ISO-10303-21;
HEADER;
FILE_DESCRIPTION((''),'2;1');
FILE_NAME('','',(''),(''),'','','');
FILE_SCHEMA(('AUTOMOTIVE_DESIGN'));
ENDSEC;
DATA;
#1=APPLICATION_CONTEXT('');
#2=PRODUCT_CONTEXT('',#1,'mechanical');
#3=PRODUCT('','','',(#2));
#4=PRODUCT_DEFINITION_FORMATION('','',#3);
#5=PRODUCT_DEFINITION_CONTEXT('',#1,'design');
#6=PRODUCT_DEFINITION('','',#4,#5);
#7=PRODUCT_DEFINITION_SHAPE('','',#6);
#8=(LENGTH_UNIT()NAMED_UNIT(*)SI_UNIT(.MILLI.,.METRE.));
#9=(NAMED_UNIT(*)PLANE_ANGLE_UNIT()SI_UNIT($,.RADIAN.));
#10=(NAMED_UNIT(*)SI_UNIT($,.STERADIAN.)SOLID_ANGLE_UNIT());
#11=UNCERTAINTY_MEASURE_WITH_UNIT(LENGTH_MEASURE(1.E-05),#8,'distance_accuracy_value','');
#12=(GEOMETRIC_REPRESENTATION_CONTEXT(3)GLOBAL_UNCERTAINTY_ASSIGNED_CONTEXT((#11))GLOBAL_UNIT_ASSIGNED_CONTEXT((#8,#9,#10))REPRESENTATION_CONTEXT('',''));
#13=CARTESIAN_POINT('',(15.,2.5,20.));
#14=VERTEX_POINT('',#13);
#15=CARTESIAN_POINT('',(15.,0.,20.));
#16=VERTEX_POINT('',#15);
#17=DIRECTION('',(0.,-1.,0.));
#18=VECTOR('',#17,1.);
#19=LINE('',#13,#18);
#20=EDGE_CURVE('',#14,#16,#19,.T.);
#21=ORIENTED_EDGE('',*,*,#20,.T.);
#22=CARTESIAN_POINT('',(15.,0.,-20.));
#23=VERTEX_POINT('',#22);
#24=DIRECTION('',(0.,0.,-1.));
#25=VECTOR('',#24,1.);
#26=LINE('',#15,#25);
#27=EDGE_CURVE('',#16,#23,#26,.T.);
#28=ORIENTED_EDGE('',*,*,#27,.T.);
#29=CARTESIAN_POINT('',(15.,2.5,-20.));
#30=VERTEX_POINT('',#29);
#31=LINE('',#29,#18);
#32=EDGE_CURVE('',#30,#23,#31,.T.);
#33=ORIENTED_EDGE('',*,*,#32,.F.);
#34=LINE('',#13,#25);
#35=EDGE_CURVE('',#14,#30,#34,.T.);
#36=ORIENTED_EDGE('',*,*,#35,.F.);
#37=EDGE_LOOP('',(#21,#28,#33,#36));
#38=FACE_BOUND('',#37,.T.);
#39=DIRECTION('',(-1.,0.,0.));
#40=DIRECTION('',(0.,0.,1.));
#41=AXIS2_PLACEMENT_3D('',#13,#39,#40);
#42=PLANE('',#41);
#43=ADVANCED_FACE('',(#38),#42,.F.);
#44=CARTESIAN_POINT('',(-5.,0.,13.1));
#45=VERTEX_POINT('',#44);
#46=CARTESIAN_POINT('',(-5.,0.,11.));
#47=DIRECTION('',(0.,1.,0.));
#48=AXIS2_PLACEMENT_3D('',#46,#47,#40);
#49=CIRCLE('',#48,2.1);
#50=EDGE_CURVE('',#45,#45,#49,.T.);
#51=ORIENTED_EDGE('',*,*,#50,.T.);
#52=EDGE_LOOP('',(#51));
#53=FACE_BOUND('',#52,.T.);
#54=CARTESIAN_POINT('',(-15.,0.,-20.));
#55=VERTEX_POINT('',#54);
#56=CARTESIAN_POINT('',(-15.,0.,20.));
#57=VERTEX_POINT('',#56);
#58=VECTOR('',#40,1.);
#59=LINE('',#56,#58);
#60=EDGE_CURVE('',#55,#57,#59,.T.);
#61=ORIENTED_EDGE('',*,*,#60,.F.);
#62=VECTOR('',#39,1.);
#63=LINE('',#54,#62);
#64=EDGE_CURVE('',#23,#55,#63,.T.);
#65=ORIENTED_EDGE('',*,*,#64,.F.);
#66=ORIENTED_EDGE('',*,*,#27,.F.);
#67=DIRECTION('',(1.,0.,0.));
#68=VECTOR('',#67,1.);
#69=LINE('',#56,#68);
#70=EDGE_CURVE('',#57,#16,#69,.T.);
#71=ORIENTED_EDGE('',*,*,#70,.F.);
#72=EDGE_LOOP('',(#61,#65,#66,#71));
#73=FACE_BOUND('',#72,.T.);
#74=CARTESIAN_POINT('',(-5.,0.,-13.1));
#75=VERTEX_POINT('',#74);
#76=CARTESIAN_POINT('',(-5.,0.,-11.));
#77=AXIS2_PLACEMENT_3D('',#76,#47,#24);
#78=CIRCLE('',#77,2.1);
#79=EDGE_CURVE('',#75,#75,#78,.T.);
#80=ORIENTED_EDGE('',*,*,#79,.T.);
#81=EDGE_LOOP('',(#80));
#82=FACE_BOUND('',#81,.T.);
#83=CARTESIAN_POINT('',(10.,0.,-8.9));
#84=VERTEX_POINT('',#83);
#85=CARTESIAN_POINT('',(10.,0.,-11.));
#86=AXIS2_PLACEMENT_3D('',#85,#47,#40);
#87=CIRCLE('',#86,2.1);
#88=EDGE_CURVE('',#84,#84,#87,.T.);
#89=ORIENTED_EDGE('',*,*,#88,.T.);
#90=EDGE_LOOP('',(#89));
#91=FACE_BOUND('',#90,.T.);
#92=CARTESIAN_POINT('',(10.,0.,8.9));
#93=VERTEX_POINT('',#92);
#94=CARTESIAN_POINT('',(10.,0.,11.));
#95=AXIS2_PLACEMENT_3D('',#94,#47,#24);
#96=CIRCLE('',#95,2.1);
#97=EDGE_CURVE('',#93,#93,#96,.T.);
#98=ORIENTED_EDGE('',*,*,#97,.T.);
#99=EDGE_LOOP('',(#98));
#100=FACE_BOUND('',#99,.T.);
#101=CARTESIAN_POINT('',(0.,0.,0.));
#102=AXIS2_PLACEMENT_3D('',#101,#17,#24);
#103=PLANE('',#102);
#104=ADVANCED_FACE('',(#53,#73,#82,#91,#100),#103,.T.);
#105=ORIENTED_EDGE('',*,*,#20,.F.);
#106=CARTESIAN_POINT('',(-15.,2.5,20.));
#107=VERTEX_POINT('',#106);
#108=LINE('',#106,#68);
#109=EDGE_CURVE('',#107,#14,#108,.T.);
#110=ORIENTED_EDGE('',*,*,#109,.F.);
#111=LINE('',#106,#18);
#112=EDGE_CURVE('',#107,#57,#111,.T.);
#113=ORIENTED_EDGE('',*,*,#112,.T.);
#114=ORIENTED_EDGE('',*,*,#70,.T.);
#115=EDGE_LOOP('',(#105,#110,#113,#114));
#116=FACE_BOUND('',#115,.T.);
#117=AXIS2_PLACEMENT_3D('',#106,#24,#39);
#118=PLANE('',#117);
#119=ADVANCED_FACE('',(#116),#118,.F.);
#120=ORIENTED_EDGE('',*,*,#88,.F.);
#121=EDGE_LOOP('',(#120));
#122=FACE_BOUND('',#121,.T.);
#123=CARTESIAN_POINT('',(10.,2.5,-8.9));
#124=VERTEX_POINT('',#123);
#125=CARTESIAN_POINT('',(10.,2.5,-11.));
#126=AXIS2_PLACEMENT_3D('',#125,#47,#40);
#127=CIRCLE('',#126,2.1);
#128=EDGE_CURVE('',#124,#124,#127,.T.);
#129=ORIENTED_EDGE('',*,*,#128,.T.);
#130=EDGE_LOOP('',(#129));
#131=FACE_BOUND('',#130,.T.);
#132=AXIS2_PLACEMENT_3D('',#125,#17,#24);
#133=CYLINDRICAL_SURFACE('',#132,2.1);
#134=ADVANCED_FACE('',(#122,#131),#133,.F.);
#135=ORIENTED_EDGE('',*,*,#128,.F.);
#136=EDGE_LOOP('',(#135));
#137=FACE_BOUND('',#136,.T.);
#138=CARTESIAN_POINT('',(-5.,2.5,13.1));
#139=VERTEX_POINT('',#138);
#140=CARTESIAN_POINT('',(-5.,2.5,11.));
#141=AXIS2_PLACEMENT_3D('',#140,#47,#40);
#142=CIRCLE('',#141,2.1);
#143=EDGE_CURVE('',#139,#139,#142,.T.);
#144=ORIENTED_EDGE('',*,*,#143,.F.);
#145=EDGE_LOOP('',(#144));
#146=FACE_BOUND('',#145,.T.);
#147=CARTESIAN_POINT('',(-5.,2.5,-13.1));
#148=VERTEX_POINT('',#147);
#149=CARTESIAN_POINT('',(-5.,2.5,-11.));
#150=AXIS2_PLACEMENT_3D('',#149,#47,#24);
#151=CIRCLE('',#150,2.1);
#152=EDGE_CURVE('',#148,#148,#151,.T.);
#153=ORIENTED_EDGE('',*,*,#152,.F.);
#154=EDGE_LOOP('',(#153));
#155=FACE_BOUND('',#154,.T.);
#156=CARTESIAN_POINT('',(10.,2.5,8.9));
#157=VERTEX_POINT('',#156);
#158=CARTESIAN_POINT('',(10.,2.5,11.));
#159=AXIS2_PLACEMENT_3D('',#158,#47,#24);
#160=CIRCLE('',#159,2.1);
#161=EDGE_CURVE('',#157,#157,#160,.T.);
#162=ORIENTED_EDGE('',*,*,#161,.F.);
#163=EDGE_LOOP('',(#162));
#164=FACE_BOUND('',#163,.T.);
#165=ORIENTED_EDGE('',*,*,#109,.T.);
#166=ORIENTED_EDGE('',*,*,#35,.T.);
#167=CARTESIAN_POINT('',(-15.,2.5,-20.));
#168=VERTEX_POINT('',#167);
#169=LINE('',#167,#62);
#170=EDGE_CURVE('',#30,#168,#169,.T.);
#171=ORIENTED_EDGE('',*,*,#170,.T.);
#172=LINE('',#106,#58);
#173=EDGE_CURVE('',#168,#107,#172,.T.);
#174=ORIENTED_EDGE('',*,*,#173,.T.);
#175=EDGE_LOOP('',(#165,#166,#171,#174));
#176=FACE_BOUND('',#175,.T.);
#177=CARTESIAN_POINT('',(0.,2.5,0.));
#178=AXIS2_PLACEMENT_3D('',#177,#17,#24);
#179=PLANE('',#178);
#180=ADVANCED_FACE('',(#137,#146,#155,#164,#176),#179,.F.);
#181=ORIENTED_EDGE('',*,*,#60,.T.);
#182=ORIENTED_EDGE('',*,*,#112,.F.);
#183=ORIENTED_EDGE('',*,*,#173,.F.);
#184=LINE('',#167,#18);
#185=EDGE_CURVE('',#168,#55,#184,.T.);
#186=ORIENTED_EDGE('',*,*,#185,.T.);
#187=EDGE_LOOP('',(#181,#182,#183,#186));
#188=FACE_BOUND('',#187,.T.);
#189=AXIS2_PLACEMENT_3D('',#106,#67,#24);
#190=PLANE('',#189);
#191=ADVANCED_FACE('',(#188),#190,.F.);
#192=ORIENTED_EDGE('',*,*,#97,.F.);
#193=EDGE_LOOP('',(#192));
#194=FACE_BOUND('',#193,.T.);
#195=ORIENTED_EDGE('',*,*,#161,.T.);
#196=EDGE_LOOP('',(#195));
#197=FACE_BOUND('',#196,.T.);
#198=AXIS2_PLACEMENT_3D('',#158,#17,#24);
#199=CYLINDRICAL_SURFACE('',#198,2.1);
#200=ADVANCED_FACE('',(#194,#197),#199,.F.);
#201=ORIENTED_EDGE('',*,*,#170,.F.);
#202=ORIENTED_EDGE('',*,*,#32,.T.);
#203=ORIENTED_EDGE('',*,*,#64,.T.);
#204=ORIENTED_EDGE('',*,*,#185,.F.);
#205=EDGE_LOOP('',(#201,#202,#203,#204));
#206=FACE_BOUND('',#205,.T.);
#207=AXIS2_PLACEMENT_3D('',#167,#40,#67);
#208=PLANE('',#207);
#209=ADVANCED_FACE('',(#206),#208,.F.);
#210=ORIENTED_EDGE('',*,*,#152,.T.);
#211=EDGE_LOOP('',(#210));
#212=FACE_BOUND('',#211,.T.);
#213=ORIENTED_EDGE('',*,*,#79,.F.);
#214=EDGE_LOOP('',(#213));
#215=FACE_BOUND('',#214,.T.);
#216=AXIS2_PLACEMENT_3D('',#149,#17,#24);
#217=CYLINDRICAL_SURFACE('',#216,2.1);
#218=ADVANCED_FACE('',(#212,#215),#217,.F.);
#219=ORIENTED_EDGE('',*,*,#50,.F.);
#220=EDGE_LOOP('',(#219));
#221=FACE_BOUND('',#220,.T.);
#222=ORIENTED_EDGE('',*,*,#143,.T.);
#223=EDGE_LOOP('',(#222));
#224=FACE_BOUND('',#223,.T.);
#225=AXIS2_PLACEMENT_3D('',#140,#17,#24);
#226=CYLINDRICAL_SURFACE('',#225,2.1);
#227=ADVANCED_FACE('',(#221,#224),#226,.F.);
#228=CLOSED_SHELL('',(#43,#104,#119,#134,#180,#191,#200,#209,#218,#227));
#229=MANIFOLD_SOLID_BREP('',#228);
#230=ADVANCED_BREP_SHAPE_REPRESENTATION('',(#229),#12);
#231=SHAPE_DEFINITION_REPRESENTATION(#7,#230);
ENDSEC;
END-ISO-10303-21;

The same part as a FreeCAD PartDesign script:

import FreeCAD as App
import Part
import Sketcher
Q = App.Units.Quantity


def add_polygon(sketch, points):
    """Adds a closed chain of lines whose ends are joined by coincident constraints."""
    first, n = sketch.GeometryCount, len(points)
    for a, b in zip(points, points[1:] + points[:1]):
        sketch.addGeometry(Part.LineSegment(App.Vector(*a, 0), App.Vector(*b, 0)), False)
    for i in range(n):
        sketch.addConstraint(Sketcher.Constraint("Coincident", first + i, 2, first + (i + 1) % n, 1))

doc = App.newDocument("Part")
params = doc.addObject("Spreadsheet::Sheet", "Params")
for row, (alias, value) in enumerate([
    ("sketch1_diameter", "4.2 mm"),
    ("sketch1_width", "30 mm"),
    ("sketch1_height", "40 mm"),
    ("pad1_length", "2.5 mm"),
], start=1):
    params.set(f"A{row}", alias)
    params.set(f"B{row}", "=" + value)
    params.setAlias(f"B{row}", alias)

body = doc.addObject("PartDesign::Body", "Body")

# Sketch on XZ plane
sketch1 = body.newObject("Sketcher::SketchObject", "Sketch")
sketch1.AttachmentSupport = (doc.getObject("XZ_Plane"), [""])
sketch1.MapMode = "FlatFace"
add_polygon(sketch1, [(-15, -20), (-15, 20), (15, 20), (15, -20)])  # lines 0-3
sketch1.addGeometry(Part.Circle(App.Vector(-5, 11, 0), App.Vector(0, 0, 1), 2.1), False)  # 4
sketch1.addGeometry(Part.Circle(App.Vector(10, 11, 0), App.Vector(0, 0, 1), 2.1), False)  # 5
sketch1.addGeometry(Part.Circle(App.Vector(-5, -11, 0), App.Vector(0, 0, 1), 2.1), False)  # 6
sketch1.addGeometry(Part.Circle(App.Vector(10, -11, 0), App.Vector(0, 0, 1), 2.1), False)  # 7
sketch1.addConstraint([
    Sketcher.Constraint("Vertical", 0),
    Sketcher.Constraint("Horizontal", 1),
    Sketcher.Constraint("Vertical", 2),
    Sketcher.Constraint("Horizontal", 3),
    Sketcher.Constraint("Equal", 4, 5),
    Sketcher.Constraint("Equal", 5, 6),
    Sketcher.Constraint("Equal", 6, 7),
    Sketcher.Constraint("Symmetric", 0, 2, 2, 2, -1, 1),
    Sketcher.Constraint("Symmetric", 4, 3, 6, 3, -1),
    Sketcher.Constraint("Symmetric", 5, 3, 7, 3, -1),
    Sketcher.Constraint("Horizontal", 4, 3, 5, 3),
    Sketcher.Constraint("Diameter", 4, Q("4.2 mm")),
    Sketcher.Constraint("DistanceX", 1, 1, 1, 2, Q("30 mm")),
    Sketcher.Constraint("DistanceY", 0, 1, 0, 2, Q("40 mm")),
    Sketcher.Constraint("DistanceX", 4, 3, -1, 1, Q("5 mm")),
    Sketcher.Constraint("DistanceY", -1, 1, 4, 3, Q("11 mm")),
    Sketcher.Constraint("DistanceX", -1, 1, 5, 3, Q("10 mm")),
])
sketch1.setExpression("Constraints[15]", "Params.sketch1_diameter")
sketch1.setExpression("Constraints[16]", "Params.sketch1_width")
sketch1.setExpression("Constraints[17]", "Params.sketch1_height")
pad1 = body.newObject("PartDesign::Pad", "Pad")
pad1.Profile = sketch1
pad1.setExpression("Length", "Params.pad1_length")
pad1.Reversed = True

doc.recompute()
